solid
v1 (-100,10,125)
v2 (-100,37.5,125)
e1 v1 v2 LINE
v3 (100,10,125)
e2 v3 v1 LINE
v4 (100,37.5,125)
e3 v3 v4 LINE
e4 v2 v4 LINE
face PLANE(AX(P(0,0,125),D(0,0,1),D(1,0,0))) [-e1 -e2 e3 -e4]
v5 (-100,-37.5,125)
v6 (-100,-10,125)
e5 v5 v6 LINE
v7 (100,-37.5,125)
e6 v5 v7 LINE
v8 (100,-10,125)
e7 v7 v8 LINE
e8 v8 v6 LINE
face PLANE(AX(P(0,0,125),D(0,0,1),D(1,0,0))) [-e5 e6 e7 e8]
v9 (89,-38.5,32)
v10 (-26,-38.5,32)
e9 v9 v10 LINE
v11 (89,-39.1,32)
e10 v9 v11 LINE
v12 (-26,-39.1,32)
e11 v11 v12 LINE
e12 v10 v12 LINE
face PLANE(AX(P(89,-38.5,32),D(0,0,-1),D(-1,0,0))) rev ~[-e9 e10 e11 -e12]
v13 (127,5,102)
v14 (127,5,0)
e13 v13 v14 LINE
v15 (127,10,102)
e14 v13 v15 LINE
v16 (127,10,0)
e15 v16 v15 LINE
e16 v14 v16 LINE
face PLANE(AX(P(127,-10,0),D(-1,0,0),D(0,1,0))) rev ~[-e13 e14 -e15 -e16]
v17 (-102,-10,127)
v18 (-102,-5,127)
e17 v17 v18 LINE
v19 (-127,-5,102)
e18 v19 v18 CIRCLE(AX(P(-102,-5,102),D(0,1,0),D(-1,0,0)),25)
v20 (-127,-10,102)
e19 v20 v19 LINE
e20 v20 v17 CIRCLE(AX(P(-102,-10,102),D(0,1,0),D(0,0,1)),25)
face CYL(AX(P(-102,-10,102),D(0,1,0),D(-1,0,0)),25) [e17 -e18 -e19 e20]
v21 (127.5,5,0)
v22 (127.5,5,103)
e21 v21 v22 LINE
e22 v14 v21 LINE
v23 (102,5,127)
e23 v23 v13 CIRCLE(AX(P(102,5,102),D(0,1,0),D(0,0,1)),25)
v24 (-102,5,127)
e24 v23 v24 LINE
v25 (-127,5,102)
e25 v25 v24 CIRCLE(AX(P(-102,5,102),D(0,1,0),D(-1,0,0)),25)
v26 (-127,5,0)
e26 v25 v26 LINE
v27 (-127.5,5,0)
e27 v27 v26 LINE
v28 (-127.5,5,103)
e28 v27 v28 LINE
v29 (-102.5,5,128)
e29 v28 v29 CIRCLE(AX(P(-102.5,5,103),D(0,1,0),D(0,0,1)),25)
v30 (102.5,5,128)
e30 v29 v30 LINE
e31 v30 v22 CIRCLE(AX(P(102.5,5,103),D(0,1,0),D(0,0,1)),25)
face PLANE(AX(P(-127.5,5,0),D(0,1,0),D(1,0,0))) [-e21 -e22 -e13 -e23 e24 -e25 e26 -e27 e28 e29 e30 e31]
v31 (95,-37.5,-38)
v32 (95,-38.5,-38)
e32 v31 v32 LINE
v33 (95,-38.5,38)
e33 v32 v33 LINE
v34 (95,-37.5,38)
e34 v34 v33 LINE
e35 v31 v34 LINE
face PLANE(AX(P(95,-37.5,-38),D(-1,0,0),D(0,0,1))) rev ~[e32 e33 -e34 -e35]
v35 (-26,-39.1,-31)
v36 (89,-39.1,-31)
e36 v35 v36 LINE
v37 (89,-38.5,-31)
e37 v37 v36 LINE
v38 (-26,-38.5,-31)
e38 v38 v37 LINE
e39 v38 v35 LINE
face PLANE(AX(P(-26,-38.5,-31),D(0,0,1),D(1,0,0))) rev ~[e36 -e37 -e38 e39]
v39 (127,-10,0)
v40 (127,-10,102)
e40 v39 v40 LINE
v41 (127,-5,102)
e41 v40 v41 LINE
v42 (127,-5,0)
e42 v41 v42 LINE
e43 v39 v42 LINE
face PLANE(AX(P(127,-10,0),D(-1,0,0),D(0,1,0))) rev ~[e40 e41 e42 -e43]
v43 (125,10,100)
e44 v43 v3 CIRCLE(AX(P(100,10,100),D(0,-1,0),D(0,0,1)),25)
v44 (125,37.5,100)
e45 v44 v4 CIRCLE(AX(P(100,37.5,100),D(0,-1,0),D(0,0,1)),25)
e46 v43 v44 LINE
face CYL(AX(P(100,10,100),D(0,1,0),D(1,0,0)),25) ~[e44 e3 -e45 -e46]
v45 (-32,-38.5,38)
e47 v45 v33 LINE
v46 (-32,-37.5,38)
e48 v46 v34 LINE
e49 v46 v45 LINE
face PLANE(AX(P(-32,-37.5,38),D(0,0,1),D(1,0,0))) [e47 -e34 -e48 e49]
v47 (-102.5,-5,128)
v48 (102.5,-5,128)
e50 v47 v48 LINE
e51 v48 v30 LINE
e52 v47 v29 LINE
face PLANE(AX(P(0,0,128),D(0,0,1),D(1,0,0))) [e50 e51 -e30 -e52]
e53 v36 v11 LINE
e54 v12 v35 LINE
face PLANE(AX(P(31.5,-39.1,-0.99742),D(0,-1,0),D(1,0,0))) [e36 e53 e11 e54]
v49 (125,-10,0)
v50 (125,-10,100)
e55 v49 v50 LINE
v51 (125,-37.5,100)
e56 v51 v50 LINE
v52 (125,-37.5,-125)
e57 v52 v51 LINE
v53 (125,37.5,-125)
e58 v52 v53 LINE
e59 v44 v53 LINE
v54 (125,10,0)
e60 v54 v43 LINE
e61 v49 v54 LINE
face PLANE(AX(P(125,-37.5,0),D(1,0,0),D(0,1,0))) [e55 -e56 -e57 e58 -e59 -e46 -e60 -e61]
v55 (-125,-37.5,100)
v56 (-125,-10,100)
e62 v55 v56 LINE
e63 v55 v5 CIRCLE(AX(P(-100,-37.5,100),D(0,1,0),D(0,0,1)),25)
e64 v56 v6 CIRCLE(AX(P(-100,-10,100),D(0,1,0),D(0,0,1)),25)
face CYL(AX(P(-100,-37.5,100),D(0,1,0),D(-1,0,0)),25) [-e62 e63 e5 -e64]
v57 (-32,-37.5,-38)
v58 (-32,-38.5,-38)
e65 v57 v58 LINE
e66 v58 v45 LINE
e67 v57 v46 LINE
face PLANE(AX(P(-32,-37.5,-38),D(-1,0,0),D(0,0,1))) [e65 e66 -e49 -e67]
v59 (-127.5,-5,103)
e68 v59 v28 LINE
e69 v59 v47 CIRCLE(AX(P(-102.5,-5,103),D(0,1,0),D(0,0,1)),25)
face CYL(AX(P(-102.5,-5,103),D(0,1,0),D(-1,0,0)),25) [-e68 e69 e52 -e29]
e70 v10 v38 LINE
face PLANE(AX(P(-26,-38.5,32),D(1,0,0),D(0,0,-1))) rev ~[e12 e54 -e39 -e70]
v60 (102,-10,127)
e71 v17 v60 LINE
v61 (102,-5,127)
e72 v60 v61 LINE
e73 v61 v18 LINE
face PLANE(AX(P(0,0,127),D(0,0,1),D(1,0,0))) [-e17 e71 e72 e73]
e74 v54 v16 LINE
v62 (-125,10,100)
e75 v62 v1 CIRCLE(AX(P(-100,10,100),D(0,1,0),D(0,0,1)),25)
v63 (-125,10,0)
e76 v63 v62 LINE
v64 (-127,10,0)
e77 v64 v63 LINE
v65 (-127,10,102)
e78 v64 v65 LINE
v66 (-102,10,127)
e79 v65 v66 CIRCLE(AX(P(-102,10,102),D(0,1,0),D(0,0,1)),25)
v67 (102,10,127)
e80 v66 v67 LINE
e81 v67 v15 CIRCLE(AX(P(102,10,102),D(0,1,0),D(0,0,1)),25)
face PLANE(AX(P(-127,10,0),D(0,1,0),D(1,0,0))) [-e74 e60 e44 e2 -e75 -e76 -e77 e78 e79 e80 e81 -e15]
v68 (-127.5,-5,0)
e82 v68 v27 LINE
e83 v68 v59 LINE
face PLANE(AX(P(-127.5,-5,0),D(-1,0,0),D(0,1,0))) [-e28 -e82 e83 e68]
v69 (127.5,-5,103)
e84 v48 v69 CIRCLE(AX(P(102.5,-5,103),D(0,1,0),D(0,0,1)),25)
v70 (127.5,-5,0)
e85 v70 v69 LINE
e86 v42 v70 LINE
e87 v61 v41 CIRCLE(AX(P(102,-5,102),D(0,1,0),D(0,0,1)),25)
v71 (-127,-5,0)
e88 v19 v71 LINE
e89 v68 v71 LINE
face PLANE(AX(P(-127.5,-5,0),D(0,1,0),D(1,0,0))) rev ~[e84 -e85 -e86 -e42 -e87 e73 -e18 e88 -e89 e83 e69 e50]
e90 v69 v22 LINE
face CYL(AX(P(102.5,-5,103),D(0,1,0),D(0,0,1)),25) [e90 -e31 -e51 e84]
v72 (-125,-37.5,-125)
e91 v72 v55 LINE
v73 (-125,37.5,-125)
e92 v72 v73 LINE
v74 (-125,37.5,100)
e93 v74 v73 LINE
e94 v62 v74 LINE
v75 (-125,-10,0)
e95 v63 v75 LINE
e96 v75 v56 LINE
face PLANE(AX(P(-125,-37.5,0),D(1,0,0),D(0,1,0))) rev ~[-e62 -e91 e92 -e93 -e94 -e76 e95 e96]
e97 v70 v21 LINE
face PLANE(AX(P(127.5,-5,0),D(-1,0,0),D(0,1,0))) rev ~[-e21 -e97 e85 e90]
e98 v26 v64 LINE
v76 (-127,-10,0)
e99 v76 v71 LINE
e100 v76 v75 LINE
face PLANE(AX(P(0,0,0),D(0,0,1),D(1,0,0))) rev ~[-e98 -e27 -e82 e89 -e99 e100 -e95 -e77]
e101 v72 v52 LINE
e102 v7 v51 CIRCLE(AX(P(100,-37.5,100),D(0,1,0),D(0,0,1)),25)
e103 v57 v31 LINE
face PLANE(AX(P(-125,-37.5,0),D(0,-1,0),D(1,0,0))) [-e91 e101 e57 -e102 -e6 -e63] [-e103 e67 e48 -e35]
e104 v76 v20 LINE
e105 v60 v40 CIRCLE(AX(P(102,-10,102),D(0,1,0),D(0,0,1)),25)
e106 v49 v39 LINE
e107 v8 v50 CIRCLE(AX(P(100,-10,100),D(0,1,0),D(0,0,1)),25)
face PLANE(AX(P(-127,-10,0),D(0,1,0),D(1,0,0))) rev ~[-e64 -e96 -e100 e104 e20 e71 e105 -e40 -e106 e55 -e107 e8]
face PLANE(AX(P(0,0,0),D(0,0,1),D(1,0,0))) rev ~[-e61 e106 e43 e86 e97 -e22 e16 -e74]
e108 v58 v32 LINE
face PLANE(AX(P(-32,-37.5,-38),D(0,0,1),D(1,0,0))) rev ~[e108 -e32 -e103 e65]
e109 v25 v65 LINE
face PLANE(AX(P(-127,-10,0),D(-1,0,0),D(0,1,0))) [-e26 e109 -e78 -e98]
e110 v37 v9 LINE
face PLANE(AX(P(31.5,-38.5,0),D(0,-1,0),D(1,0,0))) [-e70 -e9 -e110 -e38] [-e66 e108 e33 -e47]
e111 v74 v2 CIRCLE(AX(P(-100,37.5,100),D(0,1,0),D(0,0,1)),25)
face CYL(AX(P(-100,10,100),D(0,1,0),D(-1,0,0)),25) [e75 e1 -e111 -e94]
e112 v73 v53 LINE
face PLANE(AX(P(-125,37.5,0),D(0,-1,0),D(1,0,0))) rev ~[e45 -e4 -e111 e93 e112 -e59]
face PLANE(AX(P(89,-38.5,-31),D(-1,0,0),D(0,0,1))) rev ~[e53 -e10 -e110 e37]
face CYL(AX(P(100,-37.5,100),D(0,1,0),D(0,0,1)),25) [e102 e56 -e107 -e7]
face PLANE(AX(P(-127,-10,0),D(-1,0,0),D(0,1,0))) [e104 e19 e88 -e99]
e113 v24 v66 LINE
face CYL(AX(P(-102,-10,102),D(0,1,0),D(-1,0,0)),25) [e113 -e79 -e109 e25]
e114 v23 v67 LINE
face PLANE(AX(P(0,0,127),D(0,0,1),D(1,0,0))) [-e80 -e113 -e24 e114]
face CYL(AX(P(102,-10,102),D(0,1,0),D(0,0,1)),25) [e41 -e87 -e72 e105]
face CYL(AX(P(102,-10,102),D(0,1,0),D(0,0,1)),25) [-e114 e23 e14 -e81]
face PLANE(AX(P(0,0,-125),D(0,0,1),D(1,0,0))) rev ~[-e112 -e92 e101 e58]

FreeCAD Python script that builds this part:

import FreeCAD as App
import Part
import Sketcher


def edges_at(feature, points):
    """Names of the edges that pass closest to the given points."""
    edges = feature.Shape.Edges
    near = lambda p: min(range(len(edges)), key=lambda i: edges[i].distToShape(Part.Vertex(*p))[0])
    return sorted({f"Edge{near(p) + 1}" for p in points})

doc = App.newDocument("Part")
body = doc.addObject("PartDesign::Body", "Body")

# Sketch on XY plane
sketch1 = doc.addObject("Sketcher::SketchObject", "Sketch")
body.addObject(sketch1)
sketch1.AttachmentSupport = (doc.XY_Plane, [""])
sketch1.MapMode = "FlatFace"
sketch1.addGeometry(Part.LineSegment(App.Vector(-125, 37.5, 0), App.Vector(-125, -37.5, 0)), False)
sketch1.addGeometry(Part.LineSegment(App.Vector(-125, -37.5, 0), App.Vector(125, -37.5, 0)), False)
sketch1.addGeometry(Part.LineSegment(App.Vector(125, -37.5, 0), App.Vector(125, 37.5, 0)), False)
sketch1.addGeometry(Part.LineSegment(App.Vector(125, 37.5, 0), App.Vector(-125, 37.5, 0)), False)
sketch1.addConstraint(Sketcher.Constraint("Coincident", 0, 2, 1, 1))
sketch1.addConstraint(Sketcher.Constraint("Coincident", 1, 2, 2, 1))
sketch1.addConstraint(Sketcher.Constraint("Coincident", 2, 2, 3, 1))
sketch1.addConstraint(Sketcher.Constraint("Coincident", 3, 2, 0, 1))
sketch1.addConstraint(Sketcher.Constraint("Vertical", 0))
sketch1.addConstraint(Sketcher.Constraint("Horizontal", 1))
sketch1.addConstraint(Sketcher.Constraint("Vertical", 2))
sketch1.addConstraint(Sketcher.Constraint("Horizontal", 3))
sketch1.addConstraint(Sketcher.Constraint("Symmetric", 0, 2, 2, 2, -1, 1))
sketch1.addConstraint(Sketcher.Constraint("DistanceX", 1, 1, 1, 2, 250.0))
sketch1.addConstraint(Sketcher.Constraint("DistanceY", 0, 2, 0, 1, 75.0))
pad1 = doc.addObject("PartDesign::Pad", "Pad")
body.addObject(pad1)
pad1.Profile = sketch1
pad1.Length = 250
pad1.Midplane = True

# Sketch on XY plane
sketch2 = doc.addObject("Sketcher::SketchObject", "Sketch001")
body.addObject(sketch2)
sketch2.AttachmentSupport = (doc.XY_Plane, [""])
sketch2.MapMode = "FlatFace"
sketch2.addGeometry(Part.LineSegment(App.Vector(-127, 10, 0), App.Vector(-127, -10, 0)), False)
sketch2.addGeometry(Part.LineSegment(App.Vector(-127, -10, 0), App.Vector(127, -10, 0)), False)
sketch2.addGeometry(Part.LineSegment(App.Vector(127, -10, 0), App.Vector(127, 10, 0)), False)
sketch2.addGeometry(Part.LineSegment(App.Vector(127, 10, 0), App.Vector(-127, 10, 0)), False)
sketch2.addConstraint(Sketcher.Constraint("Coincident", 0, 2, 1, 1))
sketch2.addConstraint(Sketcher.Constraint("Coincident", 1, 2, 2, 1))
sketch2.addConstraint(Sketcher.Constraint("Coincident", 2, 2, 3, 1))
sketch2.addConstraint(Sketcher.Constraint("Coincident", 3, 2, 0, 1))
sketch2.addConstraint(Sketcher.Constraint("Vertical", 0))
sketch2.addConstraint(Sketcher.Constraint("Horizontal", 1))
sketch2.addConstraint(Sketcher.Constraint("Vertical", 2))
sketch2.addConstraint(Sketcher.Constraint("Horizontal", 3))
sketch2.addConstraint(Sketcher.Constraint("Symmetric", 0, 2, 2, 2, -1, 1))
sketch2.addConstraint(Sketcher.Constraint("DistanceX", 1, 1, 1, 2, 254.0))
sketch2.addConstraint(Sketcher.Constraint("DistanceY", 0, 2, 0, 1, 20.0))
pad2 = doc.addObject("PartDesign::Pad", "Pad001")
body.addObject(pad2)
pad2.Profile = sketch2
pad2.Length = 127
doc.recompute()

fillet = doc.addObject("PartDesign::Fillet", "Fillet")
body.addObject(fillet)
fillet.Base = (pad2, edges_at(pad2, [
    (-127, 0, 127),
    (-125, 23.75, 125),
    (-125, -23.75, 125),
    (125, 23.75, 125),
    (125, -23.75, 125),
    (127, 0, 127),
]))
fillet.Radius = 25

# Sketch on XY plane
sketch3 = doc.addObject("Sketcher::SketchObject", "Sketch002")
body.addObject(sketch3)
sketch3.AttachmentSupport = (doc.XY_Plane, [""])
sketch3.MapMode = "FlatFace"
sketch3.addGeometry(Part.LineSegment(App.Vector(-127.5, 5, 0), App.Vector(-127.5, -5, 0)), False)
sketch3.addGeometry(Part.LineSegment(App.Vector(-127.5, -5, 0), App.Vector(127.5, -5, 0)), False)
sketch3.addGeometry(Part.LineSegment(App.Vector(127.5, -5, 0), App.Vector(127.5, 5, 0)), False)
sketch3.addGeometry(Part.LineSegment(App.Vector(127.5, 5, 0), App.Vector(-127.5, 5, 0)), False)
sketch3.addConstraint(Sketcher.Constraint("Coincident", 0, 2, 1, 1))
sketch3.addConstraint(Sketcher.Constraint("Coincident", 1, 2, 2, 1))
sketch3.addConstraint(Sketcher.Constraint("Coincident", 2, 2, 3, 1))
sketch3.addConstraint(Sketcher.Constraint("Coincident", 3, 2, 0, 1))
sketch3.addConstraint(Sketcher.Constraint("Vertical", 0))
sketch3.addConstraint(Sketcher.Constraint("Horizontal", 1))
sketch3.addConstraint(Sketcher.Constraint("Vertical", 2))
sketch3.addConstraint(Sketcher.Constraint("Horizontal", 3))
sketch3.addConstraint(Sketcher.Constraint("Symmetric", 0, 2, 2, 2, -1, 1))
sketch3.addConstraint(Sketcher.Constraint("DistanceX", 1, 1, 1, 2, 255.0))
sketch3.addConstraint(Sketcher.Constraint("DistanceY", 0, 2, 0, 1, 10.0))
pad3 = doc.addObject("PartDesign::Pad", "Pad002")
body.addObject(pad3)
pad3.Profile = sketch3
pad3.Length = 128
doc.recompute()

fillet2 = doc.addObject("PartDesign::Fillet", "Fillet001")
body.addObject(fillet2)
fillet2.Base = (pad3, edges_at(pad3, [(-127.5, 0, 128), (127.5, 0, 128)]))
fillet2.Radius = 25

# Sketch on XZ plane
sketch4 = doc.addObject("Sketcher::SketchObject", "Sketch003")
body.addObject(sketch4)
sketch4.AttachmentSupport = (doc.XZ_Plane, [""])
sketch4.MapMode = "FlatFace"
sketch4.AttachmentOffset = App.Placement(App.Vector(0, 0, 37.5), App.Rotation())
sketch4.addGeometry(Part.LineSegment(App.Vector(-32, 38, 0), App.Vector(-32, -38, 0)), False)
sketch4.addGeometry(Part.LineSegment(App.Vector(-32, -38, 0), App.Vector(95, -38, 0)), False)
sketch4.addGeometry(Part.LineSegment(App.Vector(95, -38, 0), App.Vector(95, 38, 0)), False)
sketch4.addGeometry(Part.LineSegment(App.Vector(95, 38, 0), App.Vector(-32, 38, 0)), False)
sketch4.addConstraint(Sketcher.Constraint("Coincident", 0, 2, 1, 1))
sketch4.addConstraint(Sketcher.Constraint("Coincident", 1, 2, 2, 1))
sketch4.addConstraint(Sketcher.Constraint("Coincident", 2, 2, 3, 1))
sketch4.addConstraint(Sketcher.Constraint("Coincident", 3, 2, 0, 1))
sketch4.addConstraint(Sketcher.Constraint("Vertical", 0))
sketch4.addConstraint(Sketcher.Constraint("Horizontal", 1))
sketch4.addConstraint(Sketcher.Constraint("Vertical", 2))
sketch4.addConstraint(Sketcher.Constraint("Horizontal", 3))
sketch4.addConstraint(Sketcher.Constraint("DistanceX", 1, 1, 1, 2, 127.0))
sketch4.addConstraint(Sketcher.Constraint("DistanceY", 0, 2, 0, 1, 76.0))
sketch4.addConstraint(Sketcher.Constraint("DistanceX", 0, 2, -1, 1, 32.0))
sketch4.addConstraint(Sketcher.Constraint("DistanceY", 0, 2, -1, 1, 38.0))
pad4 = doc.addObject("PartDesign::Pad", "Pad003")
body.addObject(pad4)
pad4.Profile = sketch4
pad4.Length = 1

# Sketch on XZ plane
sketch5 = doc.addObject("Sketcher::SketchObject", "Sketch004")
body.addObject(sketch5)
sketch5.AttachmentSupport = (doc.XZ_Plane, [""])
sketch5.MapMode = "FlatFace"
sketch5.AttachmentOffset = App.Placement(App.Vector(0, 0, 38.5), App.Rotation())
sketch5.addGeometry(Part.LineSegment(App.Vector(-26, 32, 0), App.Vector(-26, -31, 0)), False)
sketch5.addGeometry(Part.LineSegment(App.Vector(-26, -31, 0), App.Vector(89, -31, 0)), False)
sketch5.addGeometry(Part.LineSegment(App.Vector(89, -31, 0), App.Vector(89, 32, 0)), False)
sketch5.addGeometry(Part.LineSegment(App.Vector(89, 32, 0), App.Vector(-26, 32, 0)), False)
sketch5.addConstraint(Sketcher.Constraint("Coincident", 0, 2, 1, 1))
sketch5.addConstraint(Sketcher.Constraint("Coincident", 1, 2, 2, 1))
sketch5.addConstraint(Sketcher.Constraint("Coincident", 2, 2, 3, 1))
sketch5.addConstraint(Sketcher.Constraint("Coincident", 3, 2, 0, 1))
sketch5.addConstraint(Sketcher.Constraint("Vertical", 0))
sketch5.addConstraint(Sketcher.Constraint("Horizontal", 1))
sketch5.addConstraint(Sketcher.Constraint("Vertical", 2))
sketch5.addConstraint(Sketcher.Constraint("Horizontal", 3))
sketch5.addConstraint(Sketcher.Constraint("DistanceX", 1, 1, 1, 2, 115.0))
sketch5.addConstraint(Sketcher.Constraint("DistanceY", 0, 2, 0, 1, 63.0))
sketch5.addConstraint(Sketcher.Constraint("DistanceX", 0, 2, -1, 1, 26.0))
sketch5.addConstraint(Sketcher.Constraint("DistanceY", 0, 2, -1, 1, 31.0))
pad5 = doc.addObject("PartDesign::Pad", "Pad004")
body.addObject(pad5)
pad5.Profile = sketch5
pad5.Length = 0.6

doc.recompute()
